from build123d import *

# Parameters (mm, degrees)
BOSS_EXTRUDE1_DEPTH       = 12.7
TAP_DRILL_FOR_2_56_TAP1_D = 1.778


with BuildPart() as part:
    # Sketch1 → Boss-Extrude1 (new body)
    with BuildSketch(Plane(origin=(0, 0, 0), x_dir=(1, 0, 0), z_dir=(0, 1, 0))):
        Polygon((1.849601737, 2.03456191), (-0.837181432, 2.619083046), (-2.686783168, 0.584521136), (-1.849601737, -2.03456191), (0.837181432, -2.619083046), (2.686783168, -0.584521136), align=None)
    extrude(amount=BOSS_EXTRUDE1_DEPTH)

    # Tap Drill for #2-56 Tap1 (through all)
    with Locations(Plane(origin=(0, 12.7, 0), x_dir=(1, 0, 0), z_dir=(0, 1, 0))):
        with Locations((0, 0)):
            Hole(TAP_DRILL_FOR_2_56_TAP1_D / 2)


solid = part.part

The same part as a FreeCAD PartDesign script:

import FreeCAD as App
import Part
import Sketcher
Q = App.Units.Quantity


def add_polygon(sketch, points):
    """Adds a closed chain of lines whose ends are joined by coincident constraints."""
    first, n = sketch.GeometryCount, len(points)
    for a, b in zip(points, points[1:] + points[:1]):
        sketch.addGeometry(Part.LineSegment(App.Vector(*a, 0), App.Vector(*b, 0)), False)
    for i in range(n):
        sketch.addConstraint(Sketcher.Constraint("Coincident", first + i, 2, first + (i + 1) % n, 1))

doc = App.newDocument("Part")
params = doc.addObject("Spreadsheet::Sheet", "Params")
for row, (alias, value) in enumerate([
    ("pad1_length", "0.5 in"),
    ("sketch2_diameter", "0.07 in"),
    ("hole_diameter", "0.07 in"),
], start=1):
    params.set(f"A{row}", alias)
    params.set(f"B{row}", "=" + value)
    params.setAlias(f"B{row}", alias)

body = doc.addObject("PartDesign::Body", "Body")

sketch1 = body.newObject("Sketcher::SketchObject", "Sketch")
sketch1.AttachmentSupport = (doc.getObject("XZ_Plane"), [""])
sketch1.MapMode = "FlatFace"
add_polygon(sketch1, [(1.8, -2), (-0.8, -2.6), (-2.7, -0.6), (-1.8, 2), (0.8, 2.6), (2.7, 0.6)])
sketch1.addConstraint(Sketcher.Constraint("Symmetric", 0, 2, 3, 2, -1, 1))
sketch1.addConstraint(Sketcher.Constraint("Symmetric", 1, 2, 4, 2, -1, 1))
sketch1.addConstraint(Sketcher.Constraint("Symmetric", 2, 2, 5, 2, -1, 1))
sketch1.addConstraint(Sketcher.Constraint("Equal", 0, 1))
sketch1.addConstraint(Sketcher.Constraint("Equal", 1, 2))
sketch1.addConstraint(Sketcher.Constraint("DistanceX", 2, 2, -1, 1, 1.849602))
sketch1.addConstraint(Sketcher.Constraint("DistanceX", 1, 2, 0, 2, 1.849602))
sketch1.addConstraint(Sketcher.Constraint("Distance", 0, 2.749631))
sketch1.addConstraint(Sketcher.Constraint("DistanceX", 0, 2, -1, 1, 0.837181))
pad1 = body.newObject("PartDesign::Pad", "Pad")
pad1.Profile = sketch1
pad1.setExpression("Length", "Params.pad1_length")
pad1.Reversed = True

sketch2 = body.newObject("Sketcher::SketchObject", "Sketch001")
sketch2.AttachmentSupport = (doc.getObject("XZ_Plane"), [""])
sketch2.MapMode = "FlatFace"
sketch2.AttachmentOffset = App.Placement(App.Vector(0, 0, -0.5 * 25.4), App.Rotation())
sketch2.addGeometry(Part.Circle(App.Vector(0, 0, 0), App.Vector(0, 0, 1), 0.9), False)
sketch2.addConstraint(Sketcher.Constraint("Coincident", 0, 3, -1, 1))
sketch2.addConstraint(Sketcher.Constraint("Diameter", 0, Q("0.07 in")))
sketch2.setExpression("Constraints[1]", "Params.sketch2_diameter")
doc.recompute()
hole = body.newObject("PartDesign::Hole", "Hole")
hole.Profile = sketch2
hole.ThreadType = "None"
hole.setExpression("Diameter", "Params.hole_diameter")
hole.DepthType = "ThroughAll"
hole.Reversed = True

doc.recompute()
